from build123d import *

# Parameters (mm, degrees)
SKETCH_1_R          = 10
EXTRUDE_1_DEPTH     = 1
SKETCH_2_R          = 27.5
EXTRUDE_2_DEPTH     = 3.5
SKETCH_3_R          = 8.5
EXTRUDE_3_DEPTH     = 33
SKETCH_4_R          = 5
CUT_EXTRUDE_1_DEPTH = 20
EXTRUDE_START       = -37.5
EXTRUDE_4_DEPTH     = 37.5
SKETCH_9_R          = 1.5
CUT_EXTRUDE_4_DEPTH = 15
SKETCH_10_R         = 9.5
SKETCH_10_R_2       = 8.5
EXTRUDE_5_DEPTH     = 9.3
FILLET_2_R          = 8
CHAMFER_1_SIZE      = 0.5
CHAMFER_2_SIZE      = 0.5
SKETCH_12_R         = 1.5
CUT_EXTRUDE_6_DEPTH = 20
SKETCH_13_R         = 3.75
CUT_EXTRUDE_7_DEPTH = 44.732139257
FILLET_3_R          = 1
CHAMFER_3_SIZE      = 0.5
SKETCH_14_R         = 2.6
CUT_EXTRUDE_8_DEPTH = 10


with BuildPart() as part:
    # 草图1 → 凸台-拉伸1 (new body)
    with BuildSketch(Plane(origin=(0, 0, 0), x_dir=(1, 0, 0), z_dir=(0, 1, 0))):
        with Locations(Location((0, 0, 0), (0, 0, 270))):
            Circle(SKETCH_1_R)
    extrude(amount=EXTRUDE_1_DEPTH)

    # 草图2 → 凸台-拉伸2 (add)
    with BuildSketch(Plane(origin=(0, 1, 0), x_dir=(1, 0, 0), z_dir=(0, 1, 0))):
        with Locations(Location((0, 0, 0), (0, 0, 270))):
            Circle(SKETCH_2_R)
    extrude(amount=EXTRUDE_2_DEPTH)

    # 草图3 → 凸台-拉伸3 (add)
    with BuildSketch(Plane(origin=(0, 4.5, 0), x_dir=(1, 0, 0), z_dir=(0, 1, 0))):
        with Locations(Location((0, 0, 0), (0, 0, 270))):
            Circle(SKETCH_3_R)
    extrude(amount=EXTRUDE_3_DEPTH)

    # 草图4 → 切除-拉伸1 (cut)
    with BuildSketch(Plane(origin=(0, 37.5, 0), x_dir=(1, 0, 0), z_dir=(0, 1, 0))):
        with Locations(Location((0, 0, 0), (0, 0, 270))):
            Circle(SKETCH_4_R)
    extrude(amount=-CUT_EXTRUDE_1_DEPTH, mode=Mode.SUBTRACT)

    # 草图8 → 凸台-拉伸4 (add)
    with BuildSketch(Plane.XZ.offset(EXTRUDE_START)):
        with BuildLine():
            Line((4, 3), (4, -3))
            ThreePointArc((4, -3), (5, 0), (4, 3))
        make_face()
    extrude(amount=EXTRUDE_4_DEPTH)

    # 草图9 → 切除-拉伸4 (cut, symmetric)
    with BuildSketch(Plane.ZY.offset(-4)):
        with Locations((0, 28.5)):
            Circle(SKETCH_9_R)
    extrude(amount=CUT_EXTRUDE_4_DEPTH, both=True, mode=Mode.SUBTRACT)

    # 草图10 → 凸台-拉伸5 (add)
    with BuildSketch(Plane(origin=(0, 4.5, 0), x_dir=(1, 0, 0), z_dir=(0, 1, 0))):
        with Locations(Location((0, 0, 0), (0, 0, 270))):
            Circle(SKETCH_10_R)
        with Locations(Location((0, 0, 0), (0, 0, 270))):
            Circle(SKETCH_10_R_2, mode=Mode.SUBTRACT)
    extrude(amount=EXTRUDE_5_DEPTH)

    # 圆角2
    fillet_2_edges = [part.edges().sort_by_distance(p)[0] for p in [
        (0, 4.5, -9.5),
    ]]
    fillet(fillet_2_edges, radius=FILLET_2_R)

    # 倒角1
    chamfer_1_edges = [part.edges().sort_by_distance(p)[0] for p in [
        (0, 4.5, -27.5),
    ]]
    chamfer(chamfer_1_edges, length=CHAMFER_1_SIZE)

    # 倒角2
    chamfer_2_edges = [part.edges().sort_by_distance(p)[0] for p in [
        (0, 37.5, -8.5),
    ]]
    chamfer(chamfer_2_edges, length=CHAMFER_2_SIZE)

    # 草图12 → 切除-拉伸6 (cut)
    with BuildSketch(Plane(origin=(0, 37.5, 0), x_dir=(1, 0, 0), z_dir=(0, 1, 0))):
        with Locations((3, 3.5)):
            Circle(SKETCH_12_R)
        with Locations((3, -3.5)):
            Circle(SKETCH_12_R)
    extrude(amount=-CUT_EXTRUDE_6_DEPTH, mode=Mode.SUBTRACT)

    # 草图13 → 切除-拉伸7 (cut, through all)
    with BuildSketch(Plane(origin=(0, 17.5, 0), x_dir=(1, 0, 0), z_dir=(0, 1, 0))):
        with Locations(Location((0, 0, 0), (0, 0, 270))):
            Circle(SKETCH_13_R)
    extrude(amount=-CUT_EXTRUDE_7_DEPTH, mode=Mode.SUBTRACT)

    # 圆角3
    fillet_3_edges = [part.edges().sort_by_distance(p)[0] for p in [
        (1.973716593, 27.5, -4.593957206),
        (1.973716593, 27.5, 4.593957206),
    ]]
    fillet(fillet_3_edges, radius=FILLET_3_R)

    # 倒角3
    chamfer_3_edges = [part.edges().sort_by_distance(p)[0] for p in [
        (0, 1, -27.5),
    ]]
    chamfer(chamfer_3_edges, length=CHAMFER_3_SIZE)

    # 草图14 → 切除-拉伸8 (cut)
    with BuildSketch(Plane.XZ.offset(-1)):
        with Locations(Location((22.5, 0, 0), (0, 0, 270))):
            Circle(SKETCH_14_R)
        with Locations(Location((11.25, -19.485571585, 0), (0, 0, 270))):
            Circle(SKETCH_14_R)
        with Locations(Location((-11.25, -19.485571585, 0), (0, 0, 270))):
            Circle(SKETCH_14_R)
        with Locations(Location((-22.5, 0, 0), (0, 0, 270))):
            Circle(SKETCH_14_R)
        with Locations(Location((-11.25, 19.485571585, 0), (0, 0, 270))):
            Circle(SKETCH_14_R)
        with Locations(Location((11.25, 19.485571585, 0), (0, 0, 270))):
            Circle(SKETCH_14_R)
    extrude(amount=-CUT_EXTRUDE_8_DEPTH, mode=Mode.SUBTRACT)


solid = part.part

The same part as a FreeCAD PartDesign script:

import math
import FreeCAD as App
import Part
import Sketcher

V = App.Vector
Q = App.Units.Quantity


def edges_at(feature, points):
    """Names of the edges that pass closest to the given points."""
    edges = feature.Shape.Edges
    near = lambda p: min(range(len(edges)), key=lambda i: edges[i].distToShape(Part.Vertex(*p))[0])
    return sorted({f"Edge{near(p) + 1}" for p in points})

doc = App.newDocument("Part")
body = doc.addObject("PartDesign::Body", "Body")

sketch1 = body.newObject("Sketcher::SketchObject", "Sketch")
sketch1.AttachmentSupport = (doc.getObject("XZ_Plane"), [""])
sketch1.MapMode = "FlatFace"
sketch1.addGeometry(Part.Circle(V(0, 0, 0), V(0, 0, 1), 10), False)
sketch1.addConstraint([
    Sketcher.Constraint("Coincident", 0, 3, -1, 1),
    Sketcher.Constraint("Diameter", 0, Q("20 mm")),
])
pad1 = body.newObject("PartDesign::Pad", "Pad")
pad1.Profile = sketch1
pad1.Length = 1
pad1.Reversed = True

sketch2 = body.newObject("Sketcher::SketchObject", "Sketch001")
sketch2.AttachmentSupport = (doc.getObject("XZ_Plane"), [""])
sketch2.MapMode = "FlatFace"
sketch2.AttachmentOffset = App.Placement(V(0, 0, -1), App.Rotation())
sketch2.addGeometry(Part.Circle(V(0, 0, 0), V(0, 0, 1), 28), False)
sketch2.addConstraint([
    Sketcher.Constraint("Coincident", 0, 3, -1, 1),
    Sketcher.Constraint("Diameter", 0, Q("55 mm")),
])
pad2 = body.newObject("PartDesign::Pad", "Pad001")
pad2.Profile = sketch2
pad2.Length = 3.5
pad2.Reversed = True

sketch3 = body.newObject("Sketcher::SketchObject", "Sketch002")
sketch3.AttachmentSupport = (doc.getObject("XZ_Plane"), [""])
sketch3.MapMode = "FlatFace"
sketch3.AttachmentOffset = App.Placement(V(0, 0, -4.5), App.Rotation())
sketch3.addGeometry(Part.Circle(V(0, 0, 0), V(0, 0, 1), 8), False)
sketch3.addConstraint([
    Sketcher.Constraint("Coincident", 0, 3, -1, 1),
    Sketcher.Constraint("Diameter", 0, Q("17 mm")),
])
pad3 = body.newObject("PartDesign::Pad", "Pad002")
pad3.Profile = sketch3
pad3.Length = 33
pad3.Reversed = True

sketch4 = body.newObject("Sketcher::SketchObject", "Sketch003")
sketch4.AttachmentSupport = (doc.getObject("XZ_Plane"), [""])
sketch4.MapMode = "FlatFace"
sketch4.AttachmentOffset = App.Placement(V(0, 0, -37.5), App.Rotation())
sketch4.addGeometry(Part.Circle(V(0, 0, 0), V(0, 0, 1), 5), False)
sketch4.addConstraint([
    Sketcher.Constraint("Coincident", 0, 3, -1, 1),
    Sketcher.Constraint("Diameter", 0, Q("10 mm")),
])
pocket1 = body.newObject("PartDesign::Pocket", "Pocket")
pocket1.Profile = sketch4
pocket1.Length = 20
pocket1.Reversed = True

sketch5 = body.newObject("Sketcher::SketchObject", "Sketch004")
sketch5.AttachmentSupport = (doc.getObject("XZ_Plane"), [""])
sketch5.MapMode = "FlatFace"
sketch5.AttachmentOffset = App.Placement(V(0, 0, -37.5), App.Rotation())
sketch5.addGeometry([
    Part.LineSegment(V(4, 3, 0), V(4, -3, 0)),
    Part.ArcOfCircle(Part.Circle(V(0, 0, 0), V(0, 0, 1), 5), math.radians(-37), math.radians(37)),
], False)
sketch5.addConstraint([
    Sketcher.Constraint("Coincident", 0, 1, 1, 2),
    Sketcher.Constraint("Coincident", 1, 1, 0, 2),
    Sketcher.Constraint("Vertical", 0),
    Sketcher.Constraint("Coincident", 1, 3, -1, 1),
    Sketcher.Constraint("Radius", 1, Q("5 mm")),
    Sketcher.Constraint("DistanceY", 0, 2, 0, 1, Q("6 mm")),
])
pad4 = body.newObject("PartDesign::Pad", "Pad003")
pad4.Profile = sketch5
pad4.Length = 37.5

sketch6 = body.newObject("Sketcher::SketchObject", "Sketch005")
sketch6.AttachmentSupport = (doc.getObject("YZ_Plane"), [""])
sketch6.MapMode = "FlatFace"
sketch6.AttachmentOffset = App.Placement(V(0, 0, 4), App.Rotation())
sketch6.addGeometry(Part.Circle(V(28.5, 0, 0), V(0, 0, 1), 1.5), False)
sketch6.addConstraint([
    Sketcher.Constraint("PointOnObject", 0, 3, -1),
    Sketcher.Constraint("Diameter", 0, Q("3 mm")),
    Sketcher.Constraint("DistanceX", -1, 1, 0, 3, Q("28.5 mm")),
])
pocket2 = body.newObject("PartDesign::Pocket", "Pocket001")
pocket2.Profile = sketch6
pocket2.Length = 30
pocket2.Midplane = True

sketch7 = body.newObject("Sketcher::SketchObject", "Sketch006")
sketch7.AttachmentSupport = (doc.getObject("XZ_Plane"), [""])
sketch7.MapMode = "FlatFace"
sketch7.AttachmentOffset = App.Placement(V(0, 0, -4.5), App.Rotation())
sketch7.addGeometry([
    Part.Circle(V(0, 0, 0), V(0, 0, 1), 10),
    Part.Circle(V(0, 0, 0), V(0, 0, 1), 8),
], False)
sketch7.addConstraint([
    Sketcher.Constraint("Coincident", 0, 3, -1, 1),
    Sketcher.Constraint("Coincident", 1, 3, -1, 1),
    Sketcher.Constraint("Diameter", 0, Q("19 mm")),
    Sketcher.Constraint("Diameter", 1, Q("17 mm")),
])
pad5 = body.newObject("PartDesign::Pad", "Pad004")
pad5.Profile = sketch7
pad5.Length = 9.3
pad5.Reversed = True
doc.recompute()

fillet = body.newObject("PartDesign::Fillet", "Fillet")
fillet.Base = (pad5, edges_at(pad5, [(0, 4.5, -9.5)]))
fillet.Radius = 8
doc.recompute()

chamfer = body.newObject("PartDesign::Chamfer", "Chamfer")
chamfer.Base = (fillet, edges_at(fillet, [(0, 4.5, -27.5)]))
chamfer.Size = 0.5
doc.recompute()

chamfer2 = body.newObject("PartDesign::Chamfer", "Chamfer001")
chamfer2.Base = (chamfer, edges_at(chamfer, [(0, 37.5, -8.5)]))
chamfer2.Size = 0.5

sketch8 = body.newObject("Sketcher::SketchObject", "Sketch007")
sketch8.AttachmentSupport = (doc.getObject("XZ_Plane"), [""])
sketch8.MapMode = "FlatFace"
sketch8.AttachmentOffset = App.Placement(V(0, 0, -37.5), App.Rotation())
sketch8.addGeometry([
    Part.Circle(V(3, -3.5, 0), V(0, 0, 1), 1.5),
    Part.Circle(V(3, 3.5, 0), V(0, 0, 1), 1.5),
], False)
sketch8.addConstraint([
    Sketcher.Constraint("Equal", 0, 1),
    Sketcher.Constraint("Symmetric", 0, 3, 1, 3, -1),
    Sketcher.Constraint("Diameter", 0, Q("3 mm")),
    Sketcher.Constraint("DistanceX", -1, 1, 0, 3, Q("3 mm")),
    Sketcher.Constraint("DistanceY", 0, 3, 1, 3, Q("7 mm")),
])
pocket3 = body.newObject("PartDesign::Pocket", "Pocket002")
pocket3.Profile = sketch8
pocket3.Length = 20
pocket3.Reversed = True

sketch9 = body.newObject("Sketcher::SketchObject", "Sketch008")
sketch9.AttachmentSupport = (doc.getObject("XZ_Plane"), [""])
sketch9.MapMode = "FlatFace"
sketch9.AttachmentOffset = App.Placement(V(0, 0, -17.5), App.Rotation())
sketch9.addGeometry(Part.Circle(V(0, 0, 0), V(0, 0, 1), 3.8), False)
sketch9.addConstraint([
    Sketcher.Constraint("Coincident", 0, 3, -1, 1),
    Sketcher.Constraint("Diameter", 0, Q("7.5 mm")),
])
pocket4 = body.newObject("PartDesign::Pocket", "Pocket003")
pocket4.Profile = sketch9
pocket4.Type = "ThroughAll"
pocket4.Reversed = True
doc.recompute()

fillet2 = body.newObject("PartDesign::Fillet", "Fillet001")
fillet2.Base = (pocket4, edges_at(pocket4, [(1.974, 27.5, -4.594), (1.974, 27.5, 4.594)]))
fillet2.Radius = 1
doc.recompute()

chamfer3 = body.newObject("PartDesign::Chamfer", "Chamfer002")
chamfer3.Base = (fillet2, edges_at(fillet2, [(0, 1, -27.5)]))
chamfer3.Size = 0.5

sketch10 = body.newObject("Sketcher::SketchObject", "Sketch009")
sketch10.AttachmentSupport = (doc.getObject("XZ_Plane"), [""])
sketch10.MapMode = "FlatFace"
sketch10.AttachmentOffset = App.Placement(V(0, 0, -1), App.Rotation())
sketch10.addGeometry([
    Part.Circle(V(22.5, 0, 0), V(0, 0, 1), 2.6),
    Part.Circle(V(11.2, -19.5, 0), V(0, 0, 1), 2.6),
    Part.Circle(V(-11.2, -19.5, 0), V(0, 0, 1), 2.6),
    Part.Circle(V(-22.5, 0, 0), V(0, 0, 1), 2.6),
    Part.Circle(V(-11.2, 19.5, 0), V(0, 0, 1), 2.6),
    Part.Circle(V(11.2, 19.5, 0), V(0, 0, 1), 2.6),
], False)
sketch10.addConstraint([
    Sketcher.Constraint("Equal", 0, 1),
    Sketcher.Constraint("Equal", 1, 2),
    Sketcher.Constraint("Equal", 2, 3),
    Sketcher.Constraint("Equal", 3, 4),
    Sketcher.Constraint("Equal", 4, 5),
    Sketcher.Constraint("Symmetric", 0, 3, 3, 3, -1, 1),
    Sketcher.Constraint("Symmetric", 1, 3, 4, 3, -1, 1),
    Sketcher.Constraint("Symmetric", 2, 3, 5, 3, -1, 1),
    Sketcher.Constraint("Symmetric", 1, 3, 2, 3, -2),
    Sketcher.Constraint("PointOnObject", 0, 3, -1),
    Sketcher.Constraint("Diameter", 0, Q("5.2 mm")),
    Sketcher.Constraint("DistanceX", 3, 3, 0, 3, Q("45 mm")),
    Sketcher.Constraint("DistanceX", 2, 3, 1, 3, Q("22.5 mm")),
    Sketcher.Constraint("DistanceY", 1, 3, -1, 1, Q("19.485572 mm")),
])
pocket5 = body.newObject("PartDesign::Pocket", "Pocket004")
pocket5.Profile = sketch10
pocket5.Length = 10

doc.recompute()
